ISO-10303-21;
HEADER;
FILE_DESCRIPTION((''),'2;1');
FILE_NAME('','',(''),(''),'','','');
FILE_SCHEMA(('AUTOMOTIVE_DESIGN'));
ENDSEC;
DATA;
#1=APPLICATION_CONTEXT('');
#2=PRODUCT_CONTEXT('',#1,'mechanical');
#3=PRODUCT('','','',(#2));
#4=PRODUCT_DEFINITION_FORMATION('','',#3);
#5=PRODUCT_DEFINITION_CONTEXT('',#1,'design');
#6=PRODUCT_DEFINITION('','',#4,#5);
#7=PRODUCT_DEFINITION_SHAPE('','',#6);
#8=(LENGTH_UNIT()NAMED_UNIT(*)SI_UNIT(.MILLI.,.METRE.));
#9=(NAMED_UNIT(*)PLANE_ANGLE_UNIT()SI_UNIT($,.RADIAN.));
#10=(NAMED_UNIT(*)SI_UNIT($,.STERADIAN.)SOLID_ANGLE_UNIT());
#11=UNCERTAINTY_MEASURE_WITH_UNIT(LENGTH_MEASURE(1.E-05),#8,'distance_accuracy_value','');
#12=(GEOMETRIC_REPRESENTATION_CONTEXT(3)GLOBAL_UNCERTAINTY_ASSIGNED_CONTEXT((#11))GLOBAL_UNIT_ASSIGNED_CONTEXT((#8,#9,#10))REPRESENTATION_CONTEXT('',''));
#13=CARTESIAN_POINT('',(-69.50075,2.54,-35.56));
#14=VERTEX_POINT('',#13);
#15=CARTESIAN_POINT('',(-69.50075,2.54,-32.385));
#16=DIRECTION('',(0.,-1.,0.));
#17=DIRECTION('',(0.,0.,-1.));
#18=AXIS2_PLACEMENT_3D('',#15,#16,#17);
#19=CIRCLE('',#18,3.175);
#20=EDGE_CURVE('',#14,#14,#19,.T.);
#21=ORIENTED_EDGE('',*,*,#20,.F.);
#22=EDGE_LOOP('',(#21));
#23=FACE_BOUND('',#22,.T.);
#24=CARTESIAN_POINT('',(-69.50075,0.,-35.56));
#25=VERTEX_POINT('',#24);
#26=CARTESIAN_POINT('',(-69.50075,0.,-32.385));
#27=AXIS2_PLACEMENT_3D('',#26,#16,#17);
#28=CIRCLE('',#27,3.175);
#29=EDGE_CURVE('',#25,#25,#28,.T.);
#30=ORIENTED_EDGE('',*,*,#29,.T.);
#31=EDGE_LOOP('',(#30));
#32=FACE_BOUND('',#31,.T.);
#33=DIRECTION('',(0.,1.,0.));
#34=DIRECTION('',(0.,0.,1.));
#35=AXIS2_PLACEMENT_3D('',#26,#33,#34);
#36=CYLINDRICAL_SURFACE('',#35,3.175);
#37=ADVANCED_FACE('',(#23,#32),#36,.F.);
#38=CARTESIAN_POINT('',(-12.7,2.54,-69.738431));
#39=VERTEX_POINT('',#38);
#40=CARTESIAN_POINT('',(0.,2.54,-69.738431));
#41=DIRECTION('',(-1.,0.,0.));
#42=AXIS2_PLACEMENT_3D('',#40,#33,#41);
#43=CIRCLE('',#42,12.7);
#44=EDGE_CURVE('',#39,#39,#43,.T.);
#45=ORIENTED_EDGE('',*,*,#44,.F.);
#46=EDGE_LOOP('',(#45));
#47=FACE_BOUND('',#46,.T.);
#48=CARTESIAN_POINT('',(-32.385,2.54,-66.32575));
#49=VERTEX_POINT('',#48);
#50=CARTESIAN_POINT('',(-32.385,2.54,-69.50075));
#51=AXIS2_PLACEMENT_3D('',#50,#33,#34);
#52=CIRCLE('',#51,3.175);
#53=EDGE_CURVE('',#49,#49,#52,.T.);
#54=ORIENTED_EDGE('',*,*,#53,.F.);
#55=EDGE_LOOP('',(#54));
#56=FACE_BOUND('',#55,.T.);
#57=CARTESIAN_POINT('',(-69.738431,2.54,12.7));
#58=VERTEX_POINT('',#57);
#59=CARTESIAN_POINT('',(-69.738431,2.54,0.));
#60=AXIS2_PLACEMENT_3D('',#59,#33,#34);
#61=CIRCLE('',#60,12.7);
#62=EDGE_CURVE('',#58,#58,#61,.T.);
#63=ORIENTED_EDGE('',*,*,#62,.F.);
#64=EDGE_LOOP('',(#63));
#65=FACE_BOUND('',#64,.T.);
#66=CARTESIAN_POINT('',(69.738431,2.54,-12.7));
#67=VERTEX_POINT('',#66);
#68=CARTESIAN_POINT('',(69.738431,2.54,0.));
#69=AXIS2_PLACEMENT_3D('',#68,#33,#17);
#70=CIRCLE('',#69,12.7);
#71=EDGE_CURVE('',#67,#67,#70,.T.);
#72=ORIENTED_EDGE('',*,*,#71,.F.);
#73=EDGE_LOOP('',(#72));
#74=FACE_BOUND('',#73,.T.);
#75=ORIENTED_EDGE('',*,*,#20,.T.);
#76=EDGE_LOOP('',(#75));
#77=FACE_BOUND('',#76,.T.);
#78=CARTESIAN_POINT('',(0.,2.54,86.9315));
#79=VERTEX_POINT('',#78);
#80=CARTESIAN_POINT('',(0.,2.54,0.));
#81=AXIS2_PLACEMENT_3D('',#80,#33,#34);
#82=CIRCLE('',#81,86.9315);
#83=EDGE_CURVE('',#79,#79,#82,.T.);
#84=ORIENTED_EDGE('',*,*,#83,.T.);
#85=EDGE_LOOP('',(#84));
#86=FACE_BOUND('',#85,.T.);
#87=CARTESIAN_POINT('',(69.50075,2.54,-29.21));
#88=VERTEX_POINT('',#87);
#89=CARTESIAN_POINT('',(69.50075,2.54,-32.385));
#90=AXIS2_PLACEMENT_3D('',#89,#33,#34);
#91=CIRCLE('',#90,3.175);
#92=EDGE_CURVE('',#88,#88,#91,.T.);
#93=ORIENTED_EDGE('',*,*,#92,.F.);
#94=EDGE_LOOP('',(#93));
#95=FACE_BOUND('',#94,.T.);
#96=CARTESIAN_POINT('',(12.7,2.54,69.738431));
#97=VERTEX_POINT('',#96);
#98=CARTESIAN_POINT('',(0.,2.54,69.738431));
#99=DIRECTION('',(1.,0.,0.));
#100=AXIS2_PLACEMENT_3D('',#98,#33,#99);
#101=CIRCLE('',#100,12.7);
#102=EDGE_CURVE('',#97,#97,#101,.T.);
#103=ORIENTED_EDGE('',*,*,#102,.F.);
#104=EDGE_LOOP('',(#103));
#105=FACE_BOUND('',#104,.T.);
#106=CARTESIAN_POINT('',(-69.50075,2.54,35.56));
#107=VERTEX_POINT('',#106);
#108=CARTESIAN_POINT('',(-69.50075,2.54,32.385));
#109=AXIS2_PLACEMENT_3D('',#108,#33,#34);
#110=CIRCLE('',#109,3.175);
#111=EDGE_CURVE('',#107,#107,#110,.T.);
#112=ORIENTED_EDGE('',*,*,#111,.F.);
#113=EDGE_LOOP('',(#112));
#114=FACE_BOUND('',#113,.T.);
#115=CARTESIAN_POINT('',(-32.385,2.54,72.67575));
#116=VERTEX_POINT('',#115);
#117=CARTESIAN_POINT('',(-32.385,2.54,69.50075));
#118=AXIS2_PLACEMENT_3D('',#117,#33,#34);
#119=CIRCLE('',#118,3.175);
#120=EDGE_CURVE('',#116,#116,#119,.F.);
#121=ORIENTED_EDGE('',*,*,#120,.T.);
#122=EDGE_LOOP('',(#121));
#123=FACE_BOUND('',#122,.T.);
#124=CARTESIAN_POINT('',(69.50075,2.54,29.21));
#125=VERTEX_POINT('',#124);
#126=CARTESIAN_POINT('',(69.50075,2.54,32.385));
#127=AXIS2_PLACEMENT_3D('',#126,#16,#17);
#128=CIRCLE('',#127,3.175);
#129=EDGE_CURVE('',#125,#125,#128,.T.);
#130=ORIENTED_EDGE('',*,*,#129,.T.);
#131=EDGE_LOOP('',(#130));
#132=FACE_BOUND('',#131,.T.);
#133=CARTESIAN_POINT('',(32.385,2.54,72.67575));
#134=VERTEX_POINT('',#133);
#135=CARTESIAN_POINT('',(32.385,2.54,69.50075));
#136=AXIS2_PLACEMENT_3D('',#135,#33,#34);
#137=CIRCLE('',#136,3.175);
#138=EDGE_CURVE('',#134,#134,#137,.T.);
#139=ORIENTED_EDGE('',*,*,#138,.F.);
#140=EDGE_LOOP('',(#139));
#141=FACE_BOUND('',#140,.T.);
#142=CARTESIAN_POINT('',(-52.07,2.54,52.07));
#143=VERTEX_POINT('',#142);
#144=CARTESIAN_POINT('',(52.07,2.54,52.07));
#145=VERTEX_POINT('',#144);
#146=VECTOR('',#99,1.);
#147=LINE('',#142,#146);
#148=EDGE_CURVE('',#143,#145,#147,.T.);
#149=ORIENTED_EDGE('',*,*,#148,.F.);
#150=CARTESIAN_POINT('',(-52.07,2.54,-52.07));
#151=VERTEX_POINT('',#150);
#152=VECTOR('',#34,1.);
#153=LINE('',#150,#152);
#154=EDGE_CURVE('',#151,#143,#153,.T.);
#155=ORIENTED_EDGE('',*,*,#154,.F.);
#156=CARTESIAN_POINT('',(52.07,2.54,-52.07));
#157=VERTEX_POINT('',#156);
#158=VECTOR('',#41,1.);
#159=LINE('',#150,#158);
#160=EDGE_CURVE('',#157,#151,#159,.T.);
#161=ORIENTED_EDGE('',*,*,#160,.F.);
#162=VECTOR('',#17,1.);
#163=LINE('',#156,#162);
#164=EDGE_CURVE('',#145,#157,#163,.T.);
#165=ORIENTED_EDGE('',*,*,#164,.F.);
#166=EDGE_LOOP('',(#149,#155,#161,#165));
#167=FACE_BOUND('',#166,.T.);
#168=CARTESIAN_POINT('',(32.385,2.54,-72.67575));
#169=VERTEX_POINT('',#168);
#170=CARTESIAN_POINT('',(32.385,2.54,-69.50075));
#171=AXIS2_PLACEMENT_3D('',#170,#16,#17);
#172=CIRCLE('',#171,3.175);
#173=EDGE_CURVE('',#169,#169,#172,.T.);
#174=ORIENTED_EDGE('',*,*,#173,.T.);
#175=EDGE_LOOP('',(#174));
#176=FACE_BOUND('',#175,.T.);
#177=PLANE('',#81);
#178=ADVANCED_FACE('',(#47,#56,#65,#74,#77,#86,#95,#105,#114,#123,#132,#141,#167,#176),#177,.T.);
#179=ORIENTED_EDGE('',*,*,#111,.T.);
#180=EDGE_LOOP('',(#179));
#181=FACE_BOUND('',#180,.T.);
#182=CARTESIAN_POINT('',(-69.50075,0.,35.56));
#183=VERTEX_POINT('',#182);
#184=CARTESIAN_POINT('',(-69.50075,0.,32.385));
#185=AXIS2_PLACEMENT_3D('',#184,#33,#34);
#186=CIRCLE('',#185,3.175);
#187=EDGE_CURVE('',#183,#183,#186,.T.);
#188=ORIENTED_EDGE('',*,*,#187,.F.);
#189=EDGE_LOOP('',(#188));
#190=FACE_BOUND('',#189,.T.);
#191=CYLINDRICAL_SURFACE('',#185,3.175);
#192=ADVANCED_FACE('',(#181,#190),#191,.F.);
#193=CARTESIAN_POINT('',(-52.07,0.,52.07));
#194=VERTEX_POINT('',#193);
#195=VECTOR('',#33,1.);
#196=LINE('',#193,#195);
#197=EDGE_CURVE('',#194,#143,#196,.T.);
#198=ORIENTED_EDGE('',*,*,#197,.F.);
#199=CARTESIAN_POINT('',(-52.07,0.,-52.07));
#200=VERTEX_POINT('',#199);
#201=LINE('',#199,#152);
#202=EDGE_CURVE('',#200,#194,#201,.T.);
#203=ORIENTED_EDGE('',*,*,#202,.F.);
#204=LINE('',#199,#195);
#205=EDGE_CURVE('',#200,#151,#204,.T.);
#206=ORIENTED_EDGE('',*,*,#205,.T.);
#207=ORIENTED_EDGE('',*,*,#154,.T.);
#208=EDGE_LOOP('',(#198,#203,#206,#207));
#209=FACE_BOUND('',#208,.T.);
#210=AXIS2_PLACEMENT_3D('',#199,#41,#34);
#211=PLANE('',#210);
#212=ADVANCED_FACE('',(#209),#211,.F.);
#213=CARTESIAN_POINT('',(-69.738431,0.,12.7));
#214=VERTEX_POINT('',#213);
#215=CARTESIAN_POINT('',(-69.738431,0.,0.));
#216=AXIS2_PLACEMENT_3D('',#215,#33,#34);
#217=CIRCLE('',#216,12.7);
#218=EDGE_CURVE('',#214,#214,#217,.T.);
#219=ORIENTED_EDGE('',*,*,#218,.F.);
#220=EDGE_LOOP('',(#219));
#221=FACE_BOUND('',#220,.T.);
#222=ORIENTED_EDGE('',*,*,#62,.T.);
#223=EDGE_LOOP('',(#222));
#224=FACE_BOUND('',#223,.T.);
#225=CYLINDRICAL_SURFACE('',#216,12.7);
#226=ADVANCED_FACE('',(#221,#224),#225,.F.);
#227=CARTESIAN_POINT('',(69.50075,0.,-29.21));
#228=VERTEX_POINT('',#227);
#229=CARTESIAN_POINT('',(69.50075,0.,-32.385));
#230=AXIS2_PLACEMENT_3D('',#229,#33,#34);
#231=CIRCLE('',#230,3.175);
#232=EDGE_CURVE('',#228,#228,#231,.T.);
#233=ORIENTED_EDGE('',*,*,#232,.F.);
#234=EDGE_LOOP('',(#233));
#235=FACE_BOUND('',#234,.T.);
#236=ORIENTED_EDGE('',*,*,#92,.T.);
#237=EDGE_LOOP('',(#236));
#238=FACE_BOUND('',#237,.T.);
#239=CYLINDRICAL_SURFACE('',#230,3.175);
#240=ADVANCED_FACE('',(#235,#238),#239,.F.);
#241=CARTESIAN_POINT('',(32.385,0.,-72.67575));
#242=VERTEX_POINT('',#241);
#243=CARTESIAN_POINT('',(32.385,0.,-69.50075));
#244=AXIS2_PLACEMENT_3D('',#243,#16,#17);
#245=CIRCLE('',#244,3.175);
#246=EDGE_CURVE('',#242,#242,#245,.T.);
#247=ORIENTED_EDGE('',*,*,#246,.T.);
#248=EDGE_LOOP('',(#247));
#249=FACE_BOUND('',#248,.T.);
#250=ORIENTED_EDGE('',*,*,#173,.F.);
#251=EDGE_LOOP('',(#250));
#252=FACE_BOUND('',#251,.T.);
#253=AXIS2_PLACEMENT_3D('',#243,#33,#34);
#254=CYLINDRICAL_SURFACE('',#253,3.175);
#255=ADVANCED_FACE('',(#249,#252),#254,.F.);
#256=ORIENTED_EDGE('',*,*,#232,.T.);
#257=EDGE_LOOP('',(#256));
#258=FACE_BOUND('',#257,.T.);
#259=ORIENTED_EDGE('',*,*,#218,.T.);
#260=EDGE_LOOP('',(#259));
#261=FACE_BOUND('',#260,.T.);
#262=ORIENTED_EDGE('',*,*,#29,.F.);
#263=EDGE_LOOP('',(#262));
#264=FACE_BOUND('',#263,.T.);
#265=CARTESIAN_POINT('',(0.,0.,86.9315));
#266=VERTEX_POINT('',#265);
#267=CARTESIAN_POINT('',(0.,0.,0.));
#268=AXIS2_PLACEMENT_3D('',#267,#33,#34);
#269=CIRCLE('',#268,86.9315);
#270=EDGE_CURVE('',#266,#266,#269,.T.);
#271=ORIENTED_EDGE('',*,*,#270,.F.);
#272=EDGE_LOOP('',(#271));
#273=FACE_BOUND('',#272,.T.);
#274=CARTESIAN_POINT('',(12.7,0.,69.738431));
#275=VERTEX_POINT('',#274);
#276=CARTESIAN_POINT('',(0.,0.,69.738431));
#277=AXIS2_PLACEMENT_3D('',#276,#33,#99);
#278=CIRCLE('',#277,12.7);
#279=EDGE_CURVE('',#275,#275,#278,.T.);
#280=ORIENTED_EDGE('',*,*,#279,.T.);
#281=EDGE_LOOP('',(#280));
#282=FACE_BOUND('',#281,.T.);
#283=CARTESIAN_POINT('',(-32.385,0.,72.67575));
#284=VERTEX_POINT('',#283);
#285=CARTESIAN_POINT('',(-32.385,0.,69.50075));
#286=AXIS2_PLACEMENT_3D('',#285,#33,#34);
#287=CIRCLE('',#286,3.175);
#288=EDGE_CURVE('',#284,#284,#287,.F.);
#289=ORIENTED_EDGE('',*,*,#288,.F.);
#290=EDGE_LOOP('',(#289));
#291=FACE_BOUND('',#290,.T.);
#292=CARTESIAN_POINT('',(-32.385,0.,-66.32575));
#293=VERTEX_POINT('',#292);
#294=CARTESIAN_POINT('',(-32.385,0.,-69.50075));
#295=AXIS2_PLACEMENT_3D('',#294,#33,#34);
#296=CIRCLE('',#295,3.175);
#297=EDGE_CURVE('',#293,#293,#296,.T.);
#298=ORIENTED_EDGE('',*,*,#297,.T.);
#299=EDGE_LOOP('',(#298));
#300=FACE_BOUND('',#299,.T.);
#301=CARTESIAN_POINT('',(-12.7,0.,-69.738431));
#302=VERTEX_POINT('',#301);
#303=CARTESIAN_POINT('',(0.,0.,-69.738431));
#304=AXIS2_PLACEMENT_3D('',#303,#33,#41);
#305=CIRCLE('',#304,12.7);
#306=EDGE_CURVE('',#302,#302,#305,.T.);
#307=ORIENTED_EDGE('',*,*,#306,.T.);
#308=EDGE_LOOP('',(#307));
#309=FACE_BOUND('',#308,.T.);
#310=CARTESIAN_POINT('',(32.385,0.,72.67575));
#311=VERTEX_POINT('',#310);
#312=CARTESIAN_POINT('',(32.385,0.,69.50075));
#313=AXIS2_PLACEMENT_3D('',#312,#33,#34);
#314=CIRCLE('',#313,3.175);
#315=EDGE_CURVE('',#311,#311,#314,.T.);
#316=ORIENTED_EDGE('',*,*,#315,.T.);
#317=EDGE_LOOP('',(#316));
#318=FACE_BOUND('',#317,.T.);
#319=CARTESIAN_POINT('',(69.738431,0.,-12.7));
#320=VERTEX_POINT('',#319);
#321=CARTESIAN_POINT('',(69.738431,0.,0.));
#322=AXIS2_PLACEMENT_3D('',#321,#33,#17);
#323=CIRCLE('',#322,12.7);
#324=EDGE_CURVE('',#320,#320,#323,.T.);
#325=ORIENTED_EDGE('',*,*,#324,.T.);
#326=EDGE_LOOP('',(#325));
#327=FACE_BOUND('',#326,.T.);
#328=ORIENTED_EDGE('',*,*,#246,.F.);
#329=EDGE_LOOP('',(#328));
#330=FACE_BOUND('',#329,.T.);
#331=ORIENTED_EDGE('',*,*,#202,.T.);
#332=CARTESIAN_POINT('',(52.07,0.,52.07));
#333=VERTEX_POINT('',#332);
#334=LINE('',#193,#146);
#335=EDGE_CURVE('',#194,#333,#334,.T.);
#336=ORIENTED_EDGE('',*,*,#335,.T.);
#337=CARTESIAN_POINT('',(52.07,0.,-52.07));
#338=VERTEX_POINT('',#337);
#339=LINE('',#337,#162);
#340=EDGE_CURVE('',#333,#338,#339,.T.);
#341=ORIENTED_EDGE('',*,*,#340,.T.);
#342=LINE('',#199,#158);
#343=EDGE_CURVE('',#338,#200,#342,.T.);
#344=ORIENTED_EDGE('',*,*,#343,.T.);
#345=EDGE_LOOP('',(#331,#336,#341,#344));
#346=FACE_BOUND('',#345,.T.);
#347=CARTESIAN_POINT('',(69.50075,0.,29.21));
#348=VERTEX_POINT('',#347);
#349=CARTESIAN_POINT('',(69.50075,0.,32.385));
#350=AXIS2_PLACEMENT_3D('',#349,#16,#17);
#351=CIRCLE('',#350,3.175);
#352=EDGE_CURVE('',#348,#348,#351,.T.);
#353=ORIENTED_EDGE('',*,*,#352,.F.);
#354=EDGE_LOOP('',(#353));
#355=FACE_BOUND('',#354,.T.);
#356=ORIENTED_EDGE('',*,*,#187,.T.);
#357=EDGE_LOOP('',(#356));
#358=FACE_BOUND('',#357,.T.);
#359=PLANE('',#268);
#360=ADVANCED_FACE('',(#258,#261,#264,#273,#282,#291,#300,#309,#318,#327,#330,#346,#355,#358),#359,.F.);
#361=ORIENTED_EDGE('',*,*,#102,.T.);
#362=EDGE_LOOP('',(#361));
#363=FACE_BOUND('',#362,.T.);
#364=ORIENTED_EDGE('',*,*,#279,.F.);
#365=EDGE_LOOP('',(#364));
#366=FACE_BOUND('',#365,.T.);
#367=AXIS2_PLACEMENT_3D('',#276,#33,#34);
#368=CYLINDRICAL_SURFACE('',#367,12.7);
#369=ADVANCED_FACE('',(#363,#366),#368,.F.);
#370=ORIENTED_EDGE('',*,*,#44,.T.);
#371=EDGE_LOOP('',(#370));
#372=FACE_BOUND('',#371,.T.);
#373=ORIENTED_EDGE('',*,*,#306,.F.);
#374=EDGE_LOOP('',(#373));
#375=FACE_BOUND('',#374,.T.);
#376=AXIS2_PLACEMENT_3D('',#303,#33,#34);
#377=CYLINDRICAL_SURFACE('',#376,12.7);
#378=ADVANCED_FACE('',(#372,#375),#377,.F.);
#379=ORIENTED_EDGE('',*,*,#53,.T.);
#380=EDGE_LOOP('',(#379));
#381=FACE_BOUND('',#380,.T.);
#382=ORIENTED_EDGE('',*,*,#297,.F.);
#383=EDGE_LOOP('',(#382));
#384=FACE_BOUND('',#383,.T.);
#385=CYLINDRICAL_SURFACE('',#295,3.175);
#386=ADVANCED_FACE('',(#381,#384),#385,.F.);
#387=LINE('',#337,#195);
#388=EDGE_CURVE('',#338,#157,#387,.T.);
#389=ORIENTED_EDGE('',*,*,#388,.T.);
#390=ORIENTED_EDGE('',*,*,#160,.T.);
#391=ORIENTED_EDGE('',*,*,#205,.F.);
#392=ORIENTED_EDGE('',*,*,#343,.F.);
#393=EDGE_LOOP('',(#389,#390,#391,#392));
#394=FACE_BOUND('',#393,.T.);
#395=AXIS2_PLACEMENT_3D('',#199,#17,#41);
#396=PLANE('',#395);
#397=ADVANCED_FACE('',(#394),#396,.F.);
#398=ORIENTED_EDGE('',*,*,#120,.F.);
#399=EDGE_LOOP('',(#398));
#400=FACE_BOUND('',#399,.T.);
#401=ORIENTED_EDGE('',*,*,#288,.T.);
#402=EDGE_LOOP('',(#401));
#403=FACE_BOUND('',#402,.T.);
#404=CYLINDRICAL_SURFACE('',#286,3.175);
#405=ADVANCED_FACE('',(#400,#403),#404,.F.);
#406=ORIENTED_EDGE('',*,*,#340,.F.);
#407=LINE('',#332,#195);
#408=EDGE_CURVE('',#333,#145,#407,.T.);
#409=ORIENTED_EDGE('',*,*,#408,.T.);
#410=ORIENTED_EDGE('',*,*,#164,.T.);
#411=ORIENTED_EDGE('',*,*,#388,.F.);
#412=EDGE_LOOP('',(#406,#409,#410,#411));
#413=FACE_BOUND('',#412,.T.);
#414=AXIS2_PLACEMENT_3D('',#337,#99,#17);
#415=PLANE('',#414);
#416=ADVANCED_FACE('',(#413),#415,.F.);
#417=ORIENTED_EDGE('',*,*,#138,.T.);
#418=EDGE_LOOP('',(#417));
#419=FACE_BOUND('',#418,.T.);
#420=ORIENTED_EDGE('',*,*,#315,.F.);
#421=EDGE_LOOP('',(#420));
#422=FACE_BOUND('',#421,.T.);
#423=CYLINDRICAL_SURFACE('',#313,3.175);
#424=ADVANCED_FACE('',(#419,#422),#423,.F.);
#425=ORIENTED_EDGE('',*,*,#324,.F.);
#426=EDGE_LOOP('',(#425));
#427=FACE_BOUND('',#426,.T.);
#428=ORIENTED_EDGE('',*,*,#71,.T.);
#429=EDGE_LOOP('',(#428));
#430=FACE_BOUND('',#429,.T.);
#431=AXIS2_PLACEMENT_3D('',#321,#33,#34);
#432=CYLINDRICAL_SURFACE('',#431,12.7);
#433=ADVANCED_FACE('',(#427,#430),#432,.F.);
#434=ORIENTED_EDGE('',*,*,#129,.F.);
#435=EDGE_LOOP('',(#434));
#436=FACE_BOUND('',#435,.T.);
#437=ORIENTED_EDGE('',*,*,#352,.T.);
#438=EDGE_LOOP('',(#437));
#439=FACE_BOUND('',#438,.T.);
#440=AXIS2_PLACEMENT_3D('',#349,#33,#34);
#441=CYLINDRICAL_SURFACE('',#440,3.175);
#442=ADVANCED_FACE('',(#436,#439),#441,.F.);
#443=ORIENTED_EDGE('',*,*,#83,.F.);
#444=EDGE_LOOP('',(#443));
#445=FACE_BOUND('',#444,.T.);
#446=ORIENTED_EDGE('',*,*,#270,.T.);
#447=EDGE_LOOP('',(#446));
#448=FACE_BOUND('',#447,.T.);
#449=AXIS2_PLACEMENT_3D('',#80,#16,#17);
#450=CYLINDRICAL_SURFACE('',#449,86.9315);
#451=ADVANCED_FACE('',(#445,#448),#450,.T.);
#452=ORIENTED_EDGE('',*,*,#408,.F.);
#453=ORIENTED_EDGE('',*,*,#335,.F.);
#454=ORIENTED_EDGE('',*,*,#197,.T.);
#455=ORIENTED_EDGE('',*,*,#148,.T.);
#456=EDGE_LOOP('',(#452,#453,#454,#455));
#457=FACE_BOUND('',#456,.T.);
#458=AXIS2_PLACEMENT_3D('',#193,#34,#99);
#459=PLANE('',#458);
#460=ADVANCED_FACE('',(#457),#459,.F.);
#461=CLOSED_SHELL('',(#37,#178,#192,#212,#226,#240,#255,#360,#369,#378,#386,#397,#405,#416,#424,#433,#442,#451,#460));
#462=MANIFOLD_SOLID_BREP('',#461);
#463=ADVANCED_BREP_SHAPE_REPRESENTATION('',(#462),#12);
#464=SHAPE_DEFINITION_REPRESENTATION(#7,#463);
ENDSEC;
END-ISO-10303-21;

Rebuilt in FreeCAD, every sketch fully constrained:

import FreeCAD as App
import Part
import Sketcher

V = App.Vector
Q = App.Units.Quantity

doc = App.newDocument("Part")
body = doc.addObject("PartDesign::Body", "Body")

# Sketch on XZ plane
sketch1 = body.newObject("Sketcher::SketchObject", "Sketch")
sketch1.AttachmentSupport = (doc.getObject("XZ_Plane"), [""])
sketch1.MapMode = "FlatFace"
sketch1.addGeometry(Part.Circle(V(0, 0, 0), V(0, 0, 1), 86.9315), False)
sketch1.addConstraint([
    Sketcher.Constraint("Coincident", 0, 3, -1, 1),
    Sketcher.Constraint("Diameter", 0, Q("6.845 in")),
])
pad1 = body.newObject("PartDesign::Pad", "Pad")
pad1.Profile = sketch1
pad1.Length = Q("0.1 in")
pad1.Reversed = True

# Sketch on XZ plane
sketch2 = body.newObject("Sketcher::SketchObject", "Sketch001")
sketch2.AttachmentSupport = (doc.getObject("XZ_Plane"), [""])
sketch2.MapMode = "FlatFace"
sketch2.AttachmentOffset = App.Placement(V(0, 0, -0.1 * 25.4), App.Rotation())
sketch2.addGeometry([
    Part.LineSegment(V(-52.07, -52.07, 0), V(-52.07, 52.07, 0)),
    Part.LineSegment(V(-52.07, 52.07, 0), V(52.07, 52.07, 0)),
    Part.LineSegment(V(52.07, 52.07, 0), V(52.07, -52.07, 0)),
    Part.LineSegment(V(52.07, -52.07, 0), V(-52.07, -52.07, 0)),
], False)
sketch2.addConstraint([
    Sketcher.Constraint("Coincident", 0, 2, 1, 1),
    Sketcher.Constraint("Coincident", 1, 2, 2, 1),
    Sketcher.Constraint("Coincident", 2, 2, 3, 1),
    Sketcher.Constraint("Coincident", 3, 2, 0, 1),
    Sketcher.Constraint("Vertical", 0),
    Sketcher.Constraint("Horizontal", 1),
    Sketcher.Constraint("Vertical", 2),
    Sketcher.Constraint("Horizontal", 3),
    Sketcher.Constraint("Symmetric", 0, 2, 2, 2, -1, 1),
    Sketcher.Constraint("Equal", 3, 0),
    Sketcher.Constraint("DistanceX", 1, 1, 1, 2, Q("4.1 in")),
])
pocket1 = body.newObject("PartDesign::Pocket", "Pocket")
pocket1.Profile = sketch2
pocket1.Length = Q("0.1 in")
pocket1.Reversed = True

# Sketch on XZ plane
sketch3 = body.newObject("Sketcher::SketchObject", "Sketch002")
sketch3.AttachmentSupport = (doc.getObject("XZ_Plane"), [""])
sketch3.MapMode = "FlatFace"
sketch3.AttachmentOffset = App.Placement(V(0, 0, -0.1 * 25.4), App.Rotation())
sketch3.addGeometry([
    Part.Circle(V(-32.385, 69.50075, 0), V(0, 0, 1), 3.175),  # 0
    Part.Circle(V(-69.50075, 32.385, 0), V(0, 0, 1), 3.175),  # 1
    Part.Circle(V(69.50075, -32.385, 0), V(0, 0, 1), 3.175),  # 2
    Part.Circle(V(-69.50075, -32.385, 0), V(0, 0, 1), 3.175),  # 3
    Part.Circle(V(-32.385, -69.50075, 0), V(0, 0, 1), 3.175),  # 4
    Part.Circle(V(32.385, -69.50075, 0), V(0, 0, 1), 3.175),  # 5
    Part.Circle(V(69.50075, 32.385, 0), V(0, 0, 1), 3.175),  # 6
    Part.Circle(V(32.385, 69.50075, 0), V(0, 0, 1), 3.175),  # 7
], False)
sketch3.addConstraint([
    Sketcher.Constraint("Equal", 0, 1),
    Sketcher.Constraint("Equal", 1, 2),
    Sketcher.Constraint("Equal", 2, 3),
    Sketcher.Constraint("Equal", 3, 4),
    Sketcher.Constraint("Equal", 4, 5),
    Sketcher.Constraint("Equal", 5, 6),
    Sketcher.Constraint("Equal", 6, 7),
    Sketcher.Constraint("Symmetric", 1, 3, 2, 3, -1, 1),
    Sketcher.Constraint("Symmetric", 0, 3, 5, 3, -1, 1),
    Sketcher.Constraint("Symmetric", 3, 3, 6, 3, -1, 1),
    Sketcher.Constraint("Symmetric", 4, 3, 7, 3, -1, 1),
    Sketcher.Constraint("Symmetric", 2, 3, 3, 3, -2),
    Sketcher.Constraint("Symmetric", 4, 3, 5, 3, -2),
    Sketcher.Constraint("Diameter", 0, Q("0.25 in")),
    Sketcher.Constraint("DistanceY", 2, 3, 1, 3, Q("2.55 in")),
    Sketcher.Constraint("DistanceX", 4, 3, 5, 3, Q("2.55 in")),
    Sketcher.Constraint("DistanceX", 1, 3, 2, 3, Q("5.4725 in")),
    Sketcher.Constraint("DistanceY", 4, 3, 0, 3, Q("5.4725 in")),
])
pocket2 = body.newObject("PartDesign::Pocket", "Pocket001")
pocket2.Profile = sketch3
pocket2.Length = Q("0.1 in")
pocket2.Reversed = True

# Sketch on XZ plane
sketch4 = body.newObject("Sketcher::SketchObject", "Sketch003")
sketch4.AttachmentSupport = (doc.getObject("XZ_Plane"), [""])
sketch4.MapMode = "FlatFace"
sketch4.AttachmentOffset = App.Placement(V(0, 0, -0.1 * 25.4), App.Rotation())
sketch4.addGeometry(Part.Circle(V(-69.738431, 0, 0), V(0, 0, 1), 12.7), False)
sketch4.addConstraint([
    Sketcher.Constraint("PointOnObject", 0, 3, -1),
    Sketcher.Constraint("Diameter", 0, Q("1 in")),
    Sketcher.Constraint("DistanceX", 0, 3, -1, 1, Q("69.738431 mm")),
])
pocket3 = body.newObject("PartDesign::Pocket", "Pocket002")
pocket3.Profile = sketch4
pocket3.Type = "ThroughAll"
pocket3.Reversed = True
doc.recompute()

polarpattern = body.newObject("PartDesign::PolarPattern", "PolarPattern")
polarpattern.Originals = [pocket3]
polarpattern.Axis = (doc.getObject("Y_Axis"), [""])
polarpattern.Angle = 360
polarpattern.Occurrences = 4
body.Tip = polarpattern

doc.recompute()
